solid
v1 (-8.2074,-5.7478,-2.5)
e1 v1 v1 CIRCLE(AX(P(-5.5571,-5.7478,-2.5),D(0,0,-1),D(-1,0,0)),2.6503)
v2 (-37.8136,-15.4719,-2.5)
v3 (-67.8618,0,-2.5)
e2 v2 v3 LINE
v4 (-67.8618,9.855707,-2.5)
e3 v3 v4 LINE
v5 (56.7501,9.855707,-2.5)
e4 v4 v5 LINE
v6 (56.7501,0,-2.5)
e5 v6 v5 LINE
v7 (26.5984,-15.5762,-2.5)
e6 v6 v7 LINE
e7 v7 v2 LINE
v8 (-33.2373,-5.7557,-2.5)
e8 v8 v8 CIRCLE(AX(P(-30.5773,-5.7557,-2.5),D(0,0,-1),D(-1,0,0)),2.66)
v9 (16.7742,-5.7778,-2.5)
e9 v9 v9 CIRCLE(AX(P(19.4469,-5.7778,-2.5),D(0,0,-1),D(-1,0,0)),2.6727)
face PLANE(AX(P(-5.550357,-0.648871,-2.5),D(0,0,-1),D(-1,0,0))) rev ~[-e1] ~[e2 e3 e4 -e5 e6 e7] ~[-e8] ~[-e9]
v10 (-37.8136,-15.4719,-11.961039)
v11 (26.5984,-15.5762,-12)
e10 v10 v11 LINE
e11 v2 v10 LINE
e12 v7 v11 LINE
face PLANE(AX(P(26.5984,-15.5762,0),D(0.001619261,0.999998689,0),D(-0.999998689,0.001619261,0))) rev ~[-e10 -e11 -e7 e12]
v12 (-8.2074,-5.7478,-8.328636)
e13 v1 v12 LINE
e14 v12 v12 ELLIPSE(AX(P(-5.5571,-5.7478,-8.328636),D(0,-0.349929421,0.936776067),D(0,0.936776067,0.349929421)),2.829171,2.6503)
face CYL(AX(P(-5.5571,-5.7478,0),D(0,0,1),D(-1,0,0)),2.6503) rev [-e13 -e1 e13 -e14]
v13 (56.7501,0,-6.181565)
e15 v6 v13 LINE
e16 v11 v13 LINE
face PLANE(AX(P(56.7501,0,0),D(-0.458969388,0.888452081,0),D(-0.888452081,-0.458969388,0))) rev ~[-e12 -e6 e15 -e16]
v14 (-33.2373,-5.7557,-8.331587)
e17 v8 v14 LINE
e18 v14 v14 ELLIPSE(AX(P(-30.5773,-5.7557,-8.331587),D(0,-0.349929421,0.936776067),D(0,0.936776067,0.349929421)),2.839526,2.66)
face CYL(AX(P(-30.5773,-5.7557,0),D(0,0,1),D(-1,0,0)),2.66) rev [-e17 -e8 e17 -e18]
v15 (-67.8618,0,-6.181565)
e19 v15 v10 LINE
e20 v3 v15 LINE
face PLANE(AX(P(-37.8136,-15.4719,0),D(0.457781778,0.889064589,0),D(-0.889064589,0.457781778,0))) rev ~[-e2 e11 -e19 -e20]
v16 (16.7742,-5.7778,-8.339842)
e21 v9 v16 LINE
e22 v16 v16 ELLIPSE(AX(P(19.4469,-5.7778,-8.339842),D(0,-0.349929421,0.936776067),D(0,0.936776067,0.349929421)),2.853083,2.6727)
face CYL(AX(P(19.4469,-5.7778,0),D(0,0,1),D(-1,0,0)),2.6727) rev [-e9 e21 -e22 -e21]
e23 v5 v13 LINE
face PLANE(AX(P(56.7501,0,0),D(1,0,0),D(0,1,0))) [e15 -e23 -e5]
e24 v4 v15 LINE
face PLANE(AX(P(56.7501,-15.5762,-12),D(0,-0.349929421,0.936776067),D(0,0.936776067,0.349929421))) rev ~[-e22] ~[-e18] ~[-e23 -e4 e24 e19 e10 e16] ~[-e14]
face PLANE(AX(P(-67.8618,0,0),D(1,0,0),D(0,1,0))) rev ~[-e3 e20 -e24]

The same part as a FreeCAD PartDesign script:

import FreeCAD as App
import Part
import Sketcher
Q = App.Units.Quantity


def add_polygon(sketch, points):
    """Adds a closed chain of lines whose ends are joined by coincident constraints."""
    first, n = sketch.GeometryCount, len(points)
    for a, b in zip(points, points[1:] + points[:1]):
        sketch.addGeometry(Part.LineSegment(App.Vector(*a, 0), App.Vector(*b, 0)), False)
    for i in range(n):
        sketch.addConstraint(Sketcher.Constraint("Coincident", first + i, 2, first + (i + 1) % n, 1))

doc = App.newDocument("Part")
body = doc.addObject("PartDesign::Body", "Body")

# Sketch on XY plane
sketch1 = body.newObject("Sketcher::SketchObject", "Sketch")
sketch1.AttachmentSupport = (doc.getObject("XY_Plane"), [""])
sketch1.MapMode = "FlatFace"
add_polygon(sketch1, [(56.8, 10), (56.8, 0), (26.6, -15.6), (-37.8, -15.5), (-67.9, 0), (-67.9, 10)])  # lines 0-5
sketch1.addGeometry(Part.Circle(App.Vector(19.4, -5.8, 0), App.Vector(0, 0, 1), 2.7), False)  # 6
sketch1.addGeometry(Part.Circle(App.Vector(-5.6, -5.7, 0), App.Vector(0, 0, 1), 2.7), False)  # 7
sketch1.addGeometry(Part.Circle(App.Vector(-30.6, -5.8, 0), App.Vector(0, 0, 1), 2.7), False)  # 8
sketch1.addConstraint([
    Sketcher.Constraint("Vertical", 0),
    Sketcher.Constraint("Vertical", 4),
    Sketcher.Constraint("Horizontal", 5),
    Sketcher.Constraint("PointOnObject", 0, 2, -1),
    Sketcher.Constraint("PointOnObject", 3, 2, -1),
    Sketcher.Constraint("Diameter", 8, Q("5.32 mm")),
    Sketcher.Constraint("DistanceY", 0, 2, 0, 1, Q("10 mm")),
    Sketcher.Constraint("Diameter", 6, Q("5.3454 mm")),
    Sketcher.Constraint("Diameter", 7, Q("5.3006 mm")),
    Sketcher.Constraint("Angle", 1, Q("-152.6794 deg")),
    Sketcher.Constraint("DistanceX", 5, 1, 5, 2, Q("124.612 mm")),
    Sketcher.Constraint("DistanceX", -1, 1, 0, 2, Q("56.75 mm")),
    Sketcher.Constraint("DistanceY", 6, 3, 7, 3, Q("0.03 mm")),
    Sketcher.Constraint("Distance", 2, Q("64.412 mm")),
    Sketcher.Constraint("DistanceX", -1, 1, 6, 3, Q("19.447 mm")),
    Sketcher.Constraint("DistanceX", 7, 3, -1, 1, Q("5.557 mm")),
    Sketcher.Constraint("DistanceY", 2, 2, -1, 1, Q("15.472 mm")),
    Sketcher.Constraint("DistanceY", 8, 3, 7, 3, Q("0.008 mm")),
    Sketcher.Constraint("DistanceY", 2, 2, 7, 3, Q("9.724 mm")),
    Sketcher.Constraint("Distance", 1, Q("33.9373 mm")),
    Sketcher.Constraint("DistanceX", 8, 3, -1, 1, Q("30.5773 mm")),
])
pad1 = body.newObject("PartDesign::Pad", "Pad")
pad1.Profile = sketch1
pad1.Length = 12
pad1.Reversed = True

# Sketch on YZ plane
sketch2 = body.newObject("Sketcher::SketchObject", "Sketch001")
sketch2.AttachmentSupport = (doc.getObject("YZ_Plane"), [""])
sketch2.MapMode = "FlatFace"
sketch2.AttachmentOffset = App.Placement(App.Vector(0, 0, 56.7501), App.Rotation())
add_polygon(sketch2, [(0, -26), (19, -12), (10, -2), (-16, -12)])  # lines 0-3
sketch2.addConstraint([
    Sketcher.Constraint("PointOnObject", 3, 2, -2),
    Sketcher.Constraint("Horizontal", 0, 2, 2, 2),
    Sketcher.Constraint("DistanceY", 0, 2, -1, 1, Q("12 mm")),
    Sketcher.Constraint("DistanceX", -1, 1, 1, 2, Q("10 mm")),
    Sketcher.Constraint("DistanceY", 3, 2, -1, 1, Q("26 mm")),
    Sketcher.Constraint("Angle", 1, Q("133.6994 deg")),
    Sketcher.Constraint("Angle", 3, Q("-41.9494 deg")),
    Sketcher.Constraint("DistanceY", 1, 2, -1, 1, Q("2.446 mm")),
])
pocket1 = body.newObject("PartDesign::Pocket", "Pocket")
pocket1.Profile = sketch2
pocket1.Length = 258
pocket1.Midplane = True

# Sketch on XY plane
sketch3 = body.newObject("Sketcher::SketchObject", "Sketch002")
sketch3.AttachmentSupport = (doc.getObject("XY_Plane"), [""])
sketch3.MapMode = "FlatFace"
add_polygon(sketch3, [(26.6, -15.6), (-37.8, -15.5), (-67.9, 0), (-67.9, 10), (56.8, 10), (56.8, 0)])  # lines 0-5
sketch3.addGeometry(Part.Circle(App.Vector(19.4, -5.8, 0), App.Vector(0, 0, 1), 2.7), False)  # 6
sketch3.addGeometry(Part.Circle(App.Vector(-5.6, -5.7, 0), App.Vector(0, 0, 1), 2.7), False)  # 7
sketch3.addGeometry(Part.Circle(App.Vector(-30.6, -5.8, 0), App.Vector(0, 0, 1), 2.7), False)  # 8
sketch3.addConstraint([
    Sketcher.Constraint("Vertical", 2),
    Sketcher.Constraint("Horizontal", 3),
    Sketcher.Constraint("Vertical", 4),
    Sketcher.Constraint("PointOnObject", 1, 2, -1),
    Sketcher.Constraint("PointOnObject", 4, 2, -1),
    Sketcher.Constraint("Diameter", 8, Q("5.32 mm")),
    Sketcher.Constraint("DistanceY", 2, 1, 2, 2, Q("10 mm")),
    Sketcher.Constraint("Diameter", 6, Q("5.3454 mm")),
    Sketcher.Constraint("Diameter", 7, Q("5.3006 mm")),
    Sketcher.Constraint("Angle", 5, Q("-152.6794 deg")),
    Sketcher.Constraint("DistanceX", 3, 1, 3, 2, Q("124.612 mm")),
    Sketcher.Constraint("DistanceX", -1, 1, 3, 2, Q("56.75 mm")),
    Sketcher.Constraint("DistanceY", 6, 3, 7, 3, Q("0.03 mm")),
    Sketcher.Constraint("Distance", 0, Q("64.412 mm")),
    Sketcher.Constraint("DistanceX", -1, 1, 6, 3, Q("19.447 mm")),
    Sketcher.Constraint("DistanceX", 7, 3, -1, 1, Q("5.557 mm")),
    Sketcher.Constraint("DistanceY", 0, 2, -1, 1, Q("15.472 mm")),
    Sketcher.Constraint("DistanceY", 8, 3, 7, 3, Q("0.008 mm")),
    Sketcher.Constraint("DistanceY", 0, 2, 7, 3, Q("9.724 mm")),
    Sketcher.Constraint("Distance", 1, Q("33.7975 mm")),
    Sketcher.Constraint("DistanceX", 8, 3, -1, 1, Q("30.5773 mm")),
])
pocket2 = body.newObject("PartDesign::Pocket", "Pocket001")
pocket2.Profile = sketch3
pocket2.Length = 2.5

doc.recompute()
